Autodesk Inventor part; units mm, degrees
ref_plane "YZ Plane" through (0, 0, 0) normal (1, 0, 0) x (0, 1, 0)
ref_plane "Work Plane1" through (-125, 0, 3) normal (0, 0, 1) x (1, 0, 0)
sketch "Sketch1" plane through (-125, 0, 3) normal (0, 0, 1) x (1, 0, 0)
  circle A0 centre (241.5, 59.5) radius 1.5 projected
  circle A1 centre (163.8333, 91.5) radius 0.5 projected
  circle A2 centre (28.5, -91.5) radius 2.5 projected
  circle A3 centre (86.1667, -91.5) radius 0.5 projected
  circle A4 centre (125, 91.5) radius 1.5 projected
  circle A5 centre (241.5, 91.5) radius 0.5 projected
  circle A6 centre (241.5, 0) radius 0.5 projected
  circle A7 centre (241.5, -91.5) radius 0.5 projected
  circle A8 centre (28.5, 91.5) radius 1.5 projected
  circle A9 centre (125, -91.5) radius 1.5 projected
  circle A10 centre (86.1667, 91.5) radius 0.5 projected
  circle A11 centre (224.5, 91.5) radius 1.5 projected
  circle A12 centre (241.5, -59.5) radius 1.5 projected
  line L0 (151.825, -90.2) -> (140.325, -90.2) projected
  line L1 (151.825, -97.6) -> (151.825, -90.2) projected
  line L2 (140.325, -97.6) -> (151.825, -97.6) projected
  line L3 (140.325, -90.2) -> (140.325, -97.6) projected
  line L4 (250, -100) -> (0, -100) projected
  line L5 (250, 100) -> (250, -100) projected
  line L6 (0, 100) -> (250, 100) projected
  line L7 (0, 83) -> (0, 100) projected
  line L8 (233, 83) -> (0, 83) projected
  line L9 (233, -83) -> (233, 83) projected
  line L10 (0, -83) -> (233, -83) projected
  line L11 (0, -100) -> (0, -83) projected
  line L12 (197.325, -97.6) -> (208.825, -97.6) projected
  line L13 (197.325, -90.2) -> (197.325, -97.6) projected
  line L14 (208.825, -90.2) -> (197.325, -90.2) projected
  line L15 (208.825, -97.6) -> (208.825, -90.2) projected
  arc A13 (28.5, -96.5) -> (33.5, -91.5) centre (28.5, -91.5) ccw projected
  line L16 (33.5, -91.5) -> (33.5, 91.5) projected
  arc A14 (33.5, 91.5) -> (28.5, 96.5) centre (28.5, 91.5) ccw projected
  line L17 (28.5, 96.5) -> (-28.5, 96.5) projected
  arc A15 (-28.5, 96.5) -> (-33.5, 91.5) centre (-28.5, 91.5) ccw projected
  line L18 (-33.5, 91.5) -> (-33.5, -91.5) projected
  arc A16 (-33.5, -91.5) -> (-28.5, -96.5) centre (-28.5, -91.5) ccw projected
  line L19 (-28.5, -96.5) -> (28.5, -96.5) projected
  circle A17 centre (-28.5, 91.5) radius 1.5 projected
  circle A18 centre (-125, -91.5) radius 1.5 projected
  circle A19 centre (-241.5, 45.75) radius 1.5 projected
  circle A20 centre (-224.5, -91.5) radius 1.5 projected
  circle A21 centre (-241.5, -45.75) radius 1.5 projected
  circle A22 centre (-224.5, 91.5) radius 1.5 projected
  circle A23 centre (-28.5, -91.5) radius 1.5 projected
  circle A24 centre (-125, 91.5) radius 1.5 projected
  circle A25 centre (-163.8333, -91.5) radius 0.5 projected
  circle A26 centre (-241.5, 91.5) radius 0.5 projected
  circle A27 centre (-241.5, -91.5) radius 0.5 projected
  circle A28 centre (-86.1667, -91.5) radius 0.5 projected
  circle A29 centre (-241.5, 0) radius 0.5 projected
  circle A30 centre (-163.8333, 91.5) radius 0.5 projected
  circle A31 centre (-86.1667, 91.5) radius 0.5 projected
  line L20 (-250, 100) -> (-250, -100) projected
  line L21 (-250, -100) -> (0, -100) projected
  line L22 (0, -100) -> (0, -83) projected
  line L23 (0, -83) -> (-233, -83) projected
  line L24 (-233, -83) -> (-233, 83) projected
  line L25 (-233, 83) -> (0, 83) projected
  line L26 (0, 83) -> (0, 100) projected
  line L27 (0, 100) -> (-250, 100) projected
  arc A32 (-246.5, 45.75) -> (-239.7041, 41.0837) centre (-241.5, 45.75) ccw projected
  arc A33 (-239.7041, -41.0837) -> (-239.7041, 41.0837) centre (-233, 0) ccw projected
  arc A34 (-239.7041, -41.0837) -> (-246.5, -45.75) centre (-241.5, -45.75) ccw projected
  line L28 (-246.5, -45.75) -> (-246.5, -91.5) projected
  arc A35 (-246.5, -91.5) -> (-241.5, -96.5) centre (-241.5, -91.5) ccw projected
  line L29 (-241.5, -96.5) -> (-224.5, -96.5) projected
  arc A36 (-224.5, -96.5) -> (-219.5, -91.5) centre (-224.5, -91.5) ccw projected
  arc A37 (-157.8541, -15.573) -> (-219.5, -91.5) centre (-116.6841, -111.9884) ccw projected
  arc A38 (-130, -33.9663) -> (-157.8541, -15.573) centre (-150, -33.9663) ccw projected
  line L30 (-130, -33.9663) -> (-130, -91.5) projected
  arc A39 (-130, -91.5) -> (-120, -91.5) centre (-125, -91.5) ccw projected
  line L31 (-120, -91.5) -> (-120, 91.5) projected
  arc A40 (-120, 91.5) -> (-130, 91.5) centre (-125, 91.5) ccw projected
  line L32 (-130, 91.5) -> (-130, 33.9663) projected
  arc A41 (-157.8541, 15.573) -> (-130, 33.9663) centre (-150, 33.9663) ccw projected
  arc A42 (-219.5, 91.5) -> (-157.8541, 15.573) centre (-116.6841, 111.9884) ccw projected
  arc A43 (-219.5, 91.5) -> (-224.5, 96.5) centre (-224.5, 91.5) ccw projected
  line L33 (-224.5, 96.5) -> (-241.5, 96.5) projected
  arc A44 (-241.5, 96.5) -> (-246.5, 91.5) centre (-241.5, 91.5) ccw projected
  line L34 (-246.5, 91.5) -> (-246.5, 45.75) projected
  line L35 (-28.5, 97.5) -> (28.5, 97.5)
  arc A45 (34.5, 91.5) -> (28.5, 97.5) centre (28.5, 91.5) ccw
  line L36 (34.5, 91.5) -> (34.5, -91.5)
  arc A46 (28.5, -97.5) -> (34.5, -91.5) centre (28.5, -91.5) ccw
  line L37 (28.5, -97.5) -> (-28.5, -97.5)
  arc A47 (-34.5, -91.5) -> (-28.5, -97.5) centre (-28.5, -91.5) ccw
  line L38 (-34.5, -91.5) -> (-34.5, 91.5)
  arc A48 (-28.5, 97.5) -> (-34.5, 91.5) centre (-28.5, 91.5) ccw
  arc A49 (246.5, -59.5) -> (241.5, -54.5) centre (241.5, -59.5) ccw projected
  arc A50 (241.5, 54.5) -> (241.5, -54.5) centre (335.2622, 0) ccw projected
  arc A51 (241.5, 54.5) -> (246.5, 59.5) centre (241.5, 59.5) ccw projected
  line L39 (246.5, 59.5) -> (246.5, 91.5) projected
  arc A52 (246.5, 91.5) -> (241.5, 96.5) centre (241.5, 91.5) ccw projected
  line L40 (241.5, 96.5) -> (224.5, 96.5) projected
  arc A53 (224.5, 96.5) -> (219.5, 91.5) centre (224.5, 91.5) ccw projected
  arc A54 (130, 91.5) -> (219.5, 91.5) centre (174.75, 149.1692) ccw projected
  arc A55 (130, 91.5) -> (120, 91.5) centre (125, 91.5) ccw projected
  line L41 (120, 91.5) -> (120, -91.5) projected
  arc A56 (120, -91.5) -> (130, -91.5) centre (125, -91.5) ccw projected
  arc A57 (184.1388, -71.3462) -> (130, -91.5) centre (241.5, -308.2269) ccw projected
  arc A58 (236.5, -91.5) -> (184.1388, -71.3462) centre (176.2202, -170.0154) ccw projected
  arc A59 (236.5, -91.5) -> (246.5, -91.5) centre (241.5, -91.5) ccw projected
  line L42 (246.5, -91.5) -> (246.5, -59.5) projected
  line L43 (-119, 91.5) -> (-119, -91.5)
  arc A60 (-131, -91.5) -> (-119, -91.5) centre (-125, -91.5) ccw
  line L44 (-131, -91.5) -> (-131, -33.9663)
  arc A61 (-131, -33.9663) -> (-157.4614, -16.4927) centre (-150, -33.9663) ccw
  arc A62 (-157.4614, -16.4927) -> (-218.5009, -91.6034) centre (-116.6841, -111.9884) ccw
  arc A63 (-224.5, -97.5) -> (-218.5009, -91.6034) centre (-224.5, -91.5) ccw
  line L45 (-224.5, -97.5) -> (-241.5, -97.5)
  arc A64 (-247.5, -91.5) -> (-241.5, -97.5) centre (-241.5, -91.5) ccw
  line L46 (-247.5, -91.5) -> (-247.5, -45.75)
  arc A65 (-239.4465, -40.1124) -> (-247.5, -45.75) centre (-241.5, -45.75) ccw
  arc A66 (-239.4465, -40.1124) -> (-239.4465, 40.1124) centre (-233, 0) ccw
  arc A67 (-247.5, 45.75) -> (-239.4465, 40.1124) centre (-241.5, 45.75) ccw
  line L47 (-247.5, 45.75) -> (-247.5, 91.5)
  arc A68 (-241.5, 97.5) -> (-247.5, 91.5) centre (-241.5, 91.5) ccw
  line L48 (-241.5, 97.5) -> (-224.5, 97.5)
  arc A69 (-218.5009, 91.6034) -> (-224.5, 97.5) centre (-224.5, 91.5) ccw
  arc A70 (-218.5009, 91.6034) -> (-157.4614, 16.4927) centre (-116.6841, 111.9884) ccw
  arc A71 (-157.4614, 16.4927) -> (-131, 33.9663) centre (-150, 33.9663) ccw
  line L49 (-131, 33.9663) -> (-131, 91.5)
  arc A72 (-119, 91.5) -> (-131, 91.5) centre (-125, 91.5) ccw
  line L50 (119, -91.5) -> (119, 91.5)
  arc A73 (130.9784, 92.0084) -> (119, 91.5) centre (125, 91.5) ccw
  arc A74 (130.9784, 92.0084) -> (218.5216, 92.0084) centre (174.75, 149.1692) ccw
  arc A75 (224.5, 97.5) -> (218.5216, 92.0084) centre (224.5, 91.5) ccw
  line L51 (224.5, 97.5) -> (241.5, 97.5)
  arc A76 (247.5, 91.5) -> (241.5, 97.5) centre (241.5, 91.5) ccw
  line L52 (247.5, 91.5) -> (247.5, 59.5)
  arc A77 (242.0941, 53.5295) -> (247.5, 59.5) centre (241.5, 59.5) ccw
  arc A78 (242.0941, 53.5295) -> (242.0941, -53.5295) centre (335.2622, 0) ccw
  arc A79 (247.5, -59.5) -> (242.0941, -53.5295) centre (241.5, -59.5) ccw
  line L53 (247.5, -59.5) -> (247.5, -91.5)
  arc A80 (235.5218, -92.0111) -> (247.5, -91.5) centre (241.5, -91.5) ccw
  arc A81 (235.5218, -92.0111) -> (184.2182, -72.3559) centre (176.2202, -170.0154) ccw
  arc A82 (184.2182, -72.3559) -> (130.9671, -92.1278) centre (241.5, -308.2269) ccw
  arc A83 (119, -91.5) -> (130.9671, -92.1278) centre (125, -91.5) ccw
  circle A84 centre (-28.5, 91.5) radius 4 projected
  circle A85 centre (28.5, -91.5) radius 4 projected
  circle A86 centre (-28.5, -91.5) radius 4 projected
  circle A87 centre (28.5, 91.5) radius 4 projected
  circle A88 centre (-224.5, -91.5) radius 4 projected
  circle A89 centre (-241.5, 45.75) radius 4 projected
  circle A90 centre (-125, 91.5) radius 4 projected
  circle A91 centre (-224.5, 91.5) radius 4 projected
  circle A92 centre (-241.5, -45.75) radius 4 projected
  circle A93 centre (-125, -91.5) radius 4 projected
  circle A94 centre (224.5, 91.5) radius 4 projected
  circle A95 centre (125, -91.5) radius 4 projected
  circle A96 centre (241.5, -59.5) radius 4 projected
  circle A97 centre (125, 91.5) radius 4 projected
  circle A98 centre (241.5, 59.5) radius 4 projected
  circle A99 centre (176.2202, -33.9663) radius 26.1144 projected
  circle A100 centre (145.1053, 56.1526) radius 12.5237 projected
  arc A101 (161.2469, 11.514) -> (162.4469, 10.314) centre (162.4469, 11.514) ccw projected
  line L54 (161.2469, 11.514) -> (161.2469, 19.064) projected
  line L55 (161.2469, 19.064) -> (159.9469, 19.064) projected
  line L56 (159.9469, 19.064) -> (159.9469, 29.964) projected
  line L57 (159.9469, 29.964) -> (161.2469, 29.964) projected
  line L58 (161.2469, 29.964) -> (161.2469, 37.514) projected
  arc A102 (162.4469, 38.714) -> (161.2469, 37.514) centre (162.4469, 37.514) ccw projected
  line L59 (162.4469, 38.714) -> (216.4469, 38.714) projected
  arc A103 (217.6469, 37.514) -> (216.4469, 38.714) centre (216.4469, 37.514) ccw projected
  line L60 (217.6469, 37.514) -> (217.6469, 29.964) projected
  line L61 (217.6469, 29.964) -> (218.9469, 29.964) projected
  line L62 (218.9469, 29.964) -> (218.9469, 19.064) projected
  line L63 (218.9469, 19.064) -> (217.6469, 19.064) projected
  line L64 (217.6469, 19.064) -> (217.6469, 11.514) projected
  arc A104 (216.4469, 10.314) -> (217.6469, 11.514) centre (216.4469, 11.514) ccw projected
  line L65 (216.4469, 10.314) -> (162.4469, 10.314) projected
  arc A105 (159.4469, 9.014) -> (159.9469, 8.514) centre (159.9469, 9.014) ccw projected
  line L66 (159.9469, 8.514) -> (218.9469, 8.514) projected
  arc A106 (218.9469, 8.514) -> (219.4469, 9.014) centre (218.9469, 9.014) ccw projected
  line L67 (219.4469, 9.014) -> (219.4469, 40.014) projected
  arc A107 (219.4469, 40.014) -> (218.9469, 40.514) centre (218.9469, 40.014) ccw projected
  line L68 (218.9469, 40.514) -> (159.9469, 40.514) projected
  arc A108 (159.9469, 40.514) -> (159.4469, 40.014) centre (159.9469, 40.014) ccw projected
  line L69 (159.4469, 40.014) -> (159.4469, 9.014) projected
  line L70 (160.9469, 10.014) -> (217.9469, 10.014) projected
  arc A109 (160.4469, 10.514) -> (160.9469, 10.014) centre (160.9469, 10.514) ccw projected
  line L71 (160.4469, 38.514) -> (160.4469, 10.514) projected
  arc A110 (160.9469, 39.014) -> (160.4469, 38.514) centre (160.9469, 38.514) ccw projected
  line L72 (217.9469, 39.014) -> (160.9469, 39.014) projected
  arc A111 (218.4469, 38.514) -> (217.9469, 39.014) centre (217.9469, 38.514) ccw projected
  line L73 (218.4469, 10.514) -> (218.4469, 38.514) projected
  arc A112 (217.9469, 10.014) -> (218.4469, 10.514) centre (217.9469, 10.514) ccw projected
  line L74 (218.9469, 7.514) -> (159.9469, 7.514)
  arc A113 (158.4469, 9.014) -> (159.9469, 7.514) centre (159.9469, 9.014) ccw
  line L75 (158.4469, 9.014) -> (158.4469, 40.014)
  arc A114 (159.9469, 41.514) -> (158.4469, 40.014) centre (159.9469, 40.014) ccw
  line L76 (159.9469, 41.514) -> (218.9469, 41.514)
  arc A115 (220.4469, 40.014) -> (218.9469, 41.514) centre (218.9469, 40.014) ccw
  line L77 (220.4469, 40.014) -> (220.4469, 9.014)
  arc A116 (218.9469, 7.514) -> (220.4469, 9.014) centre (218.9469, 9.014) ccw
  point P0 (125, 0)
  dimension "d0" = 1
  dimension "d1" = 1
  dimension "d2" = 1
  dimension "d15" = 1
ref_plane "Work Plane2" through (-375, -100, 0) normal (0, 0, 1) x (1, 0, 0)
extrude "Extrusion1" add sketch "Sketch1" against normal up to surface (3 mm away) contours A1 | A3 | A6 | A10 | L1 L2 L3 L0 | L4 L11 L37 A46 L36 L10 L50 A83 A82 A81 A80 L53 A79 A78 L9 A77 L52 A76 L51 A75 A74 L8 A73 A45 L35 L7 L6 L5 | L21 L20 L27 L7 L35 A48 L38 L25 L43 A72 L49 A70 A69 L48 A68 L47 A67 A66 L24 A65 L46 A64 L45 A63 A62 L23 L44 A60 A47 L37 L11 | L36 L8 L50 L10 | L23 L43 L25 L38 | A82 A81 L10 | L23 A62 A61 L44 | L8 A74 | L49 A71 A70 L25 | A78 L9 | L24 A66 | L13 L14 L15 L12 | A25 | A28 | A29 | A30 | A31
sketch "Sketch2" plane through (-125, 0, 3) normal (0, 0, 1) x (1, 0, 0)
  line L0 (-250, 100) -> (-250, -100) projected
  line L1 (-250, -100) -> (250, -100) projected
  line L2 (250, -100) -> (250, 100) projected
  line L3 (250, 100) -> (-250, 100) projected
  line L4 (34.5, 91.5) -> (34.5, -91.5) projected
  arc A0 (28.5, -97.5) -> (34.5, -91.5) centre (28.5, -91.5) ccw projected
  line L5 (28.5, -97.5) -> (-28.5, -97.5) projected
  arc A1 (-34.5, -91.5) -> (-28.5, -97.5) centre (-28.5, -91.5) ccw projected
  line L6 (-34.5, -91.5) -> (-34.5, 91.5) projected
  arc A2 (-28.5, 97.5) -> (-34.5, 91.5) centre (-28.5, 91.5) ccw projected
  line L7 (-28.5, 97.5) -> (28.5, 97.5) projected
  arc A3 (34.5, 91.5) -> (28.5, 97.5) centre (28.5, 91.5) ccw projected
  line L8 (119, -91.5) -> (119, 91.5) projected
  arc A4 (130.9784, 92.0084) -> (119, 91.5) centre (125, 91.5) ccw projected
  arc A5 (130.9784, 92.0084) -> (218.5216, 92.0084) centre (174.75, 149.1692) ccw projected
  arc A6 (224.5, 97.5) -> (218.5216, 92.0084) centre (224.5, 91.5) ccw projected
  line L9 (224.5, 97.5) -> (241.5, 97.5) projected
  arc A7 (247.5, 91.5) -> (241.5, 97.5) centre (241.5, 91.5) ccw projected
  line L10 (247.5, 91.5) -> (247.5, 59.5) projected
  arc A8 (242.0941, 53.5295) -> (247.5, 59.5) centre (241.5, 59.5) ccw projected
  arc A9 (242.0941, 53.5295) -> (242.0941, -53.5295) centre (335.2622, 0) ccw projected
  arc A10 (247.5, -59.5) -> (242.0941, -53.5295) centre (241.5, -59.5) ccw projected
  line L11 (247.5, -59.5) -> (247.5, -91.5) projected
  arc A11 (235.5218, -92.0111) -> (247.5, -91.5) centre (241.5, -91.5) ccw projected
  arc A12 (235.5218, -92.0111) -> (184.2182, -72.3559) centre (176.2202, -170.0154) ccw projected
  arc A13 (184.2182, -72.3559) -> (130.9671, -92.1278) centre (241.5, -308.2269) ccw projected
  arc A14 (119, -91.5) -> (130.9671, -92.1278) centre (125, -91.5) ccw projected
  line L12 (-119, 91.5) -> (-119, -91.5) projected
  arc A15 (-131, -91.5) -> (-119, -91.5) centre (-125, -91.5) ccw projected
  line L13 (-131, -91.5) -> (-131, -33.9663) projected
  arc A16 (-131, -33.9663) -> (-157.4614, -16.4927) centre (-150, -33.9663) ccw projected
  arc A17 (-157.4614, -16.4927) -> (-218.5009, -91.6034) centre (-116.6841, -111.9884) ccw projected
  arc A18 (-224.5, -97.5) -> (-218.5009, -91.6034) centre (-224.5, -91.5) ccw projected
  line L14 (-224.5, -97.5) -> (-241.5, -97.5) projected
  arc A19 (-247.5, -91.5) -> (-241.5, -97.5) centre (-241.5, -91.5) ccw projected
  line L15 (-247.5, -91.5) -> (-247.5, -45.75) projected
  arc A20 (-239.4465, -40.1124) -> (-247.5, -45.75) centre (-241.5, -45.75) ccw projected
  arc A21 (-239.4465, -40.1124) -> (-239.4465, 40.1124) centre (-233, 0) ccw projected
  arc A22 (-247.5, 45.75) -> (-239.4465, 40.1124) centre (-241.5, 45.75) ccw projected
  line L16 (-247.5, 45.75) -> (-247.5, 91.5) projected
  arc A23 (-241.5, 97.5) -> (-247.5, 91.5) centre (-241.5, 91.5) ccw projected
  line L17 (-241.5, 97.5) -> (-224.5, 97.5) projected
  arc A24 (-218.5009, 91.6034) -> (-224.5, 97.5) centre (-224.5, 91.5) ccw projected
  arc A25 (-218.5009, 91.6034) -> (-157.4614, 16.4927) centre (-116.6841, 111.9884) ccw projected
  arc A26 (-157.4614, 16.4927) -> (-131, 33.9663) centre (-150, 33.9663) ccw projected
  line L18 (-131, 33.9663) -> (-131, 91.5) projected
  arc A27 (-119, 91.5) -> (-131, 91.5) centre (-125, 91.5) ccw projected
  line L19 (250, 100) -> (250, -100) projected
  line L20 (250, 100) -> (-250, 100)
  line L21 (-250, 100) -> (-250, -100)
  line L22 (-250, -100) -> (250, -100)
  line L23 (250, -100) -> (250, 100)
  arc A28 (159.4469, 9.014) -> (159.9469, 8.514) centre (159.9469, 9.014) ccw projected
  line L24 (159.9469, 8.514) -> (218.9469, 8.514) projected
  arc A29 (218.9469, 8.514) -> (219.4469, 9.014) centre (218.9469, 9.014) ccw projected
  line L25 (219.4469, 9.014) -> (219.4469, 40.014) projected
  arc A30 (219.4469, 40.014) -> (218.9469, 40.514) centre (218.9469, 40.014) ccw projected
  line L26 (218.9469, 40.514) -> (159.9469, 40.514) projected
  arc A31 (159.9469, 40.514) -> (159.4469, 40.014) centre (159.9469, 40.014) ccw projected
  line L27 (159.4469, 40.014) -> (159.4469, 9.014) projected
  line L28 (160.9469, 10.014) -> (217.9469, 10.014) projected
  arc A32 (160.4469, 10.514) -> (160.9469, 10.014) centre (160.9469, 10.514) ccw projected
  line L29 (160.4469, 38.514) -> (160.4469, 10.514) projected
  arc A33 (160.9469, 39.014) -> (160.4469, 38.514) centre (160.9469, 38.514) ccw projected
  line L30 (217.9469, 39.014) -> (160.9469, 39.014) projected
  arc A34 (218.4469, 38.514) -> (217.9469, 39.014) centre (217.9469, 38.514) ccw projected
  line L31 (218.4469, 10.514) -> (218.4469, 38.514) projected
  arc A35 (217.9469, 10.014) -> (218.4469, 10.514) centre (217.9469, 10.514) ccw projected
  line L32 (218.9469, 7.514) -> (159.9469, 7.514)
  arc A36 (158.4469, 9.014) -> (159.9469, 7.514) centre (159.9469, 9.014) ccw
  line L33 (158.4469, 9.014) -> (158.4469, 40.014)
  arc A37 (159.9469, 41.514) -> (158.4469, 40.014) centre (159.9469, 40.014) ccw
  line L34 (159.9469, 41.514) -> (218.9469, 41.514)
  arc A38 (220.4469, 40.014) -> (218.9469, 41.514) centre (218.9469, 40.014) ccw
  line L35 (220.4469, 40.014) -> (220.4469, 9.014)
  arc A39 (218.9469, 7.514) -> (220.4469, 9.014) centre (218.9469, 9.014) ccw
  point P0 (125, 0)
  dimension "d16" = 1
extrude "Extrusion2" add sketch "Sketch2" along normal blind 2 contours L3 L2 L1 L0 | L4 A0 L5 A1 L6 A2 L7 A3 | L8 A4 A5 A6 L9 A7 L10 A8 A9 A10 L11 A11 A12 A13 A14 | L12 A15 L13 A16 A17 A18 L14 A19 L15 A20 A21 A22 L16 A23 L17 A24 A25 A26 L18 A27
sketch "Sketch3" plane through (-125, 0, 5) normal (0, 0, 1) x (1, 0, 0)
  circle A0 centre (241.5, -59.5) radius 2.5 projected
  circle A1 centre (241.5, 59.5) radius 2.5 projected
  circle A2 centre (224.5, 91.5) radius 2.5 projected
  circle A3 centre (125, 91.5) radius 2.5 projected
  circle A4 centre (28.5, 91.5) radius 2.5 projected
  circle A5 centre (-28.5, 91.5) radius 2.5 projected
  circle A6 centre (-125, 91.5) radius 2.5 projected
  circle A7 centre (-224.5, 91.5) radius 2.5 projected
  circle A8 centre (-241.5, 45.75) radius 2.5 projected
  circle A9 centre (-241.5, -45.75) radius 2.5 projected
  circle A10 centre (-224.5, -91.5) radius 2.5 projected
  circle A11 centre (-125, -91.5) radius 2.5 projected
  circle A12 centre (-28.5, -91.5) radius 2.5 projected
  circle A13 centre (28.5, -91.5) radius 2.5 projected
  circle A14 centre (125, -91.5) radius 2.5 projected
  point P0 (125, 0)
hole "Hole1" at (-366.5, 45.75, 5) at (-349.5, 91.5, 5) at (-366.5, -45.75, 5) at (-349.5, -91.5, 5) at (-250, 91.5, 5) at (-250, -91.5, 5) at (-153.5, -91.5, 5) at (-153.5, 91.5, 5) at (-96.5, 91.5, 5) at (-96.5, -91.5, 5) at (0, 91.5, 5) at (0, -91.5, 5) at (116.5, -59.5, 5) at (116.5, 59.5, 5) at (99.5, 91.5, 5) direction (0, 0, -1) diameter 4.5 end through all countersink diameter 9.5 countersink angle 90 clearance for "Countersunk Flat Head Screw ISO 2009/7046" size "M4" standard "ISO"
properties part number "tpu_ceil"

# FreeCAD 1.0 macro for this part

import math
import FreeCAD as App
import Part
import Sketcher
Q = App.Units.Quantity


def add_polygon(sketch, points):
    """Adds a closed chain of lines whose ends are joined by coincident constraints."""
    first, n = sketch.GeometryCount, len(points)
    for a, b in zip(points, points[1:] + points[:1]):
        sketch.addGeometry(Part.LineSegment(App.Vector(*a, 0), App.Vector(*b, 0)), False)
    for i in range(n):
        sketch.addConstraint(Sketcher.Constraint("Coincident", first + i, 2, first + (i + 1) % n, 1))

doc = App.newDocument("Part")
params = doc.addObject("Spreadsheet::Sheet", "Params")
for row, (alias, value) in enumerate([
    ("sketch1_radius", "6 mm"),
    ("sketch1_radius2", "19 mm"),
    ("sketch1_width", "500 mm"),
    ("sketch1_width2", "57 mm"),
    ("sketch1_width3", "17 mm"),
    ("pad1_length", "3 mm"),
    ("sketch2_radius", "1.5 mm"),
    ("sketch2_width", "500 mm"),
    ("sketch2_width2", "59 mm"),
    ("sketch2_height", "200 mm"),
    ("sketch2_height2", "31 mm"),
    ("pad2_length", "2 mm"),
    ("sketch3_diameter", "4.5 mm"),
    ("hole_diameter", "4.5 mm"),
    ("hole_csink_diameter", "9.5 mm"),
], start=1):
    params.set(f"A{row}", alias)
    params.set(f"B{row}", "=" + value)
    params.setAlias(f"B{row}", alias)

body = doc.addObject("PartDesign::Body", "Body")

# Sketch on XY plane
sketch1 = body.newObject("Sketcher::SketchObject", "Sketch")
sketch1.AttachmentSupport = (doc.getObject("XY_Plane"), [""])
sketch1.MapMode = "FlatFace"
sketch1.AttachmentOffset = App.Placement(App.Vector(0, 0, 3), App.Rotation())
add_polygon(sketch1, [(125, -100), (125, 100), (-375, 100), (-375, -100)])  # lines 0-3
sketch1.addGeometry(Part.LineSegment(App.Vector(-96, -98, 0), App.Vector(-154, -98, 0)), False)  # 4
sketch1.addGeometry(Part.ArcOfCircle(Part.Circle(App.Vector(-154, -92, 0), App.Vector(0, 0, 1), 6), math.radians(180), math.radians(270)), False)  # 5
sketch1.addGeometry(Part.LineSegment(App.Vector(-160, -92, 0), App.Vector(-160, 92, 0)), False)  # 6
sketch1.addGeometry(Part.ArcOfCircle(Part.Circle(App.Vector(-154, 92, 0), App.Vector(0, 0, 1), 6), math.radians(90), math.radians(180)), False)  # 7
sketch1.addGeometry(Part.LineSegment(App.Vector(-154, 98, 0), App.Vector(-96, 98, 0)), False)  # 8
sketch1.addGeometry(Part.ArcOfCircle(Part.Circle(App.Vector(-96, 92, 0), App.Vector(0, 0, 1), 6), math.radians(0), math.radians(90)), False)  # 9
sketch1.addGeometry(Part.LineSegment(App.Vector(-90, 92, 0), App.Vector(-90, -92, 0)), False)  # 10
sketch1.addGeometry(Part.ArcOfCircle(Part.Circle(App.Vector(-96, -92, 0), App.Vector(0, 0, 1), 6), math.radians(-90), math.radians(0)), False)  # 11
sketch1.addGeometry(Part.LineSegment(App.Vector(-6, -92, 0), App.Vector(-6, 92, 0)), False)  # 12
sketch1.addGeometry(Part.ArcOfCircle(Part.Circle(App.Vector(0, 92, 0), App.Vector(0, 0, 1), 6), math.radians(5), math.radians(180)), False)  # 13
sketch1.addGeometry(Part.ArcOfCircle(Part.Circle(App.Vector(50, 149, 0), App.Vector(0, 0, 1), 72), math.radians(-127), math.radians(-53)), False)  # 14
sketch1.addGeometry(Part.ArcOfCircle(Part.Circle(App.Vector(100, 92, 0), App.Vector(0, 0, 1), 6), math.radians(90), math.radians(175)), False)  # 15
sketch1.addGeometry(Part.LineSegment(App.Vector(100, 98, 0), App.Vector(116, 98, 0)), False)  # 16
sketch1.addGeometry(Part.ArcOfCircle(Part.Circle(App.Vector(116, 92, 0), App.Vector(0, 0, 1), 6), math.radians(0), math.radians(90)), False)  # 17
sketch1.addGeometry(Part.LineSegment(App.Vector(122, 92, 0), App.Vector(122, 60, 0)), False)  # 18
sketch1.addGeometry(Part.ArcOfCircle(Part.Circle(App.Vector(116, 60, 0), App.Vector(0, 0, 1), 6), math.radians(-84), math.radians(0)), False)  # 19
sketch1.addGeometry(Part.ArcOfCircle(Part.Circle(App.Vector(210, 0, 0), App.Vector(0, 0, 1), 107), math.radians(150), math.radians(210)), False)  # 20
sketch1.addGeometry(Part.ArcOfCircle(Part.Circle(App.Vector(116, -60, 0), App.Vector(0, 0, 1), 6), math.radians(0), math.radians(84)), False)  # 21
sketch1.addGeometry(Part.LineSegment(App.Vector(122, -60, 0), App.Vector(122, -92, 0)), False)  # 22
sketch1.addGeometry(Part.ArcOfCircle(Part.Circle(App.Vector(116, -92, 0), App.Vector(0, 0, 1), 6), math.radians(-175), math.radians(0)), False)  # 23
sketch1.addGeometry(Part.ArcOfCircle(Part.Circle(App.Vector(51, -170, 0), App.Vector(0, 0, 1), 98), math.radians(53), math.radians(85)), False)  # 24
sketch1.addGeometry(Part.ArcOfCircle(Part.Circle(App.Vector(117, -308, 0), App.Vector(0, 0, 1), 243), math.radians(103.65), math.radians(117.09)), False)  # 25
sketch1.addGeometry(Part.ArcOfCircle(Part.Circle(App.Vector(0, -92, 0), App.Vector(0, 0, 1), 6), math.radians(180), math.radians(354)), False)  # 26
sketch1.addGeometry(Part.LineSegment(App.Vector(-244, 92, 0), App.Vector(-244, -92, 0)), False)  # 27
sketch1.addGeometry(Part.ArcOfCircle(Part.Circle(App.Vector(-250, -92, 0), App.Vector(0, 0, 1), 6), math.radians(180), math.radians(360)), False)  # 28
sketch1.addGeometry(Part.LineSegment(App.Vector(-256, -92, 0), App.Vector(-256, -34, 0)), False)  # 29
sketch1.addGeometry(Part.ArcOfCircle(Part.Circle(App.Vector(-275, -34, 0), App.Vector(0, 0, 1), 19), math.radians(0), math.radians(113)), False)  # 30
sketch1.addGeometry(Part.ArcOfCircle(Part.Circle(App.Vector(-242, -112, 0), App.Vector(0, 0, 1), 104), math.radians(113), math.radians(169)), False)  # 31
sketch1.addGeometry(Part.ArcOfCircle(Part.Circle(App.Vector(-350, -92, 0), App.Vector(0, 0, 1), 6), math.radians(-90), math.radians(-1)), False)  # 32
sketch1.addGeometry(Part.LineSegment(App.Vector(-350, -98, 0), App.Vector(-366, -98, 0)), False)  # 33
sketch1.addGeometry(Part.ArcOfCircle(Part.Circle(App.Vector(-366, -92, 0), App.Vector(0, 0, 1), 6), math.radians(180), math.radians(270)), False)  # 34
sketch1.addGeometry(Part.LineSegment(App.Vector(-372, -92, 0), App.Vector(-372, -46, 0)), False)  # 35
sketch1.addGeometry(Part.ArcOfCircle(Part.Circle(App.Vector(-366, -46, 0), App.Vector(0, 0, 1), 6), math.radians(70), math.radians(180)), False)  # 36
sketch1.addGeometry(Part.ArcOfCircle(Part.Circle(App.Vector(-358, 0, 0), App.Vector(0, 0, 1), 41), math.radians(-99), math.radians(99)), False)  # 37
sketch1.addGeometry(Part.ArcOfCircle(Part.Circle(App.Vector(-366, 46, 0), App.Vector(0, 0, 1), 6), math.radians(180), math.radians(290)), False)  # 38
sketch1.addGeometry(Part.LineSegment(App.Vector(-372, 46, 0), App.Vector(-372, 92, 0)), False)  # 39
sketch1.addGeometry(Part.ArcOfCircle(Part.Circle(App.Vector(-366, 92, 0), App.Vector(0, 0, 1), 6), math.radians(90), math.radians(180)), False)  # 40
sketch1.addGeometry(Part.LineSegment(App.Vector(-366, 98, 0), App.Vector(-350, 98, 0)), False)  # 41
sketch1.addGeometry(Part.ArcOfCircle(Part.Circle(App.Vector(-350, 92, 0), App.Vector(0, 0, 1), 6), math.radians(1), math.radians(90)), False)  # 42
sketch1.addGeometry(Part.ArcOfCircle(Part.Circle(App.Vector(-242, 112, 0), App.Vector(0, 0, 1), 104), math.radians(-169), math.radians(-113)), False)  # 43
sketch1.addGeometry(Part.ArcOfCircle(Part.Circle(App.Vector(-275, 34, 0), App.Vector(0, 0, 1), 19), math.radians(-113), math.radians(0)), False)  # 44
sketch1.addGeometry(Part.LineSegment(App.Vector(-256, 34, 0), App.Vector(-256, 92, 0)), False)  # 45
sketch1.addGeometry(Part.ArcOfCircle(Part.Circle(App.Vector(-250, 92, 0), App.Vector(0, 0, 1), 6), math.radians(0), math.radians(180)), False)  # 46
sketch1.addConstraint(Sketcher.Constraint("Tangent", 4, 2, 5, 2))
sketch1.addConstraint(Sketcher.Constraint("Tangent", 5, 1, 6, 1))
sketch1.addConstraint(Sketcher.Constraint("Tangent", 6, 2, 7, 2))
sketch1.addConstraint(Sketcher.Constraint("Tangent", 7, 1, 8, 1))
sketch1.addConstraint(Sketcher.Constraint("Tangent", 8, 2, 9, 2))
sketch1.addConstraint(Sketcher.Constraint("Tangent", 9, 1, 10, 1))
sketch1.addConstraint(Sketcher.Constraint("Tangent", 10, 2, 11, 2))
sketch1.addConstraint(Sketcher.Constraint("Tangent", 11, 1, 4, 1))
sketch1.addConstraint(Sketcher.Constraint("Tangent", 12, 2, 13, 2))
sketch1.addConstraint(Sketcher.Constraint("Coincident", 13, 1, 14, 1))
sketch1.addConstraint(Sketcher.Constraint("Coincident", 14, 2, 15, 2))
sketch1.addConstraint(Sketcher.Constraint("Tangent", 15, 1, 16, 1))
sketch1.addConstraint(Sketcher.Constraint("Tangent", 16, 2, 17, 2))
sketch1.addConstraint(Sketcher.Constraint("Tangent", 17, 1, 18, 1))
sketch1.addConstraint(Sketcher.Constraint("Tangent", 18, 2, 19, 2))
sketch1.addConstraint(Sketcher.Constraint("Coincident", 19, 1, 20, 1))
sketch1.addConstraint(Sketcher.Constraint("Coincident", 20, 2, 21, 2))
sketch1.addConstraint(Sketcher.Constraint("Tangent", 21, 1, 22, 1))
sketch1.addConstraint(Sketcher.Constraint("Tangent", 22, 2, 23, 2))
sketch1.addConstraint(Sketcher.Constraint("Coincident", 23, 1, 24, 1))
sketch1.addConstraint(Sketcher.Constraint("Coincident", 24, 2, 25, 1))
sketch1.addConstraint(Sketcher.Constraint("Coincident", 25, 2, 26, 2))
sketch1.addConstraint(Sketcher.Constraint("Tangent", 26, 1, 12, 1))
sketch1.addConstraint(Sketcher.Constraint("Tangent", 27, 2, 28, 2))
sketch1.addConstraint(Sketcher.Constraint("Tangent", 28, 1, 29, 1))
sketch1.addConstraint(Sketcher.Constraint("Tangent", 29, 2, 30, 1))
sketch1.addConstraint(Sketcher.Constraint("Tangent", 30, 2, 31, 1))
sketch1.addConstraint(Sketcher.Constraint("Coincident", 31, 2, 32, 2))
sketch1.addConstraint(Sketcher.Constraint("Tangent", 32, 1, 33, 1))
sketch1.addConstraint(Sketcher.Constraint("Tangent", 33, 2, 34, 2))
sketch1.addConstraint(Sketcher.Constraint("Tangent", 34, 1, 35, 1))
sketch1.addConstraint(Sketcher.Constraint("Tangent", 35, 2, 36, 2))
sketch1.addConstraint(Sketcher.Constraint("Coincident", 36, 1, 37, 1))
sketch1.addConstraint(Sketcher.Constraint("Coincident", 37, 2, 38, 2))
sketch1.addConstraint(Sketcher.Constraint("Tangent", 38, 1, 39, 1))
sketch1.addConstraint(Sketcher.Constraint("Tangent", 39, 2, 40, 2))
sketch1.addConstraint(Sketcher.Constraint("Tangent", 40, 1, 41, 1))
sketch1.addConstraint(Sketcher.Constraint("Tangent", 41, 2, 42, 2))
sketch1.addConstraint(Sketcher.Constraint("Coincident", 42, 1, 43, 1))
sketch1.addConstraint(Sketcher.Constraint("Tangent", 43, 2, 44, 1))
sketch1.addConstraint(Sketcher.Constraint("Tangent", 44, 2, 45, 1))
sketch1.addConstraint(Sketcher.Constraint("Tangent", 45, 2, 46, 2))
sketch1.addConstraint(Sketcher.Constraint("Tangent", 46, 1, 27, 1))
sketch1.addConstraint(Sketcher.Constraint("Vertical", 0))
sketch1.addConstraint(Sketcher.Constraint("Horizontal", 1))
sketch1.addConstraint(Sketcher.Constraint("Vertical", 2))
sketch1.addConstraint(Sketcher.Constraint("Horizontal", 3))
sketch1.addConstraint(Sketcher.Constraint("Horizontal", 4))
sketch1.addConstraint(Sketcher.Constraint("Vertical", 6))
sketch1.addConstraint(Sketcher.Constraint("Horizontal", 8))
sketch1.addConstraint(Sketcher.Constraint("Vertical", 10))
sketch1.addConstraint(Sketcher.Constraint("Vertical", 12))
sketch1.addConstraint(Sketcher.Constraint("Horizontal", 16))
sketch1.addConstraint(Sketcher.Constraint("Vertical", 18))
sketch1.addConstraint(Sketcher.Constraint("Vertical", 22))
sketch1.addConstraint(Sketcher.Constraint("Vertical", 27))
sketch1.addConstraint(Sketcher.Constraint("Vertical", 29))
sketch1.addConstraint(Sketcher.Constraint("Horizontal", 33))
sketch1.addConstraint(Sketcher.Constraint("Vertical", 35))
sketch1.addConstraint(Sketcher.Constraint("Vertical", 39))
sketch1.addConstraint(Sketcher.Constraint("Horizontal", 41))
sketch1.addConstraint(Sketcher.Constraint("Vertical", 45))
sketch1.addConstraint(Sketcher.Constraint("Equal", 5, 7))
sketch1.addConstraint(Sketcher.Constraint("Equal", 7, 9))
sketch1.addConstraint(Sketcher.Constraint("Equal", 9, 11))
sketch1.addConstraint(Sketcher.Constraint("Equal", 11, 13))
sketch1.addConstraint(Sketcher.Constraint("Equal", 13, 15))
sketch1.addConstraint(Sketcher.Constraint("Equal", 15, 17))
sketch1.addConstraint(Sketcher.Constraint("Equal", 17, 19))
sketch1.addConstraint(Sketcher.Constraint("Equal", 19, 21))
sketch1.addConstraint(Sketcher.Constraint("Equal", 21, 23))
sketch1.addConstraint(Sketcher.Constraint("Equal", 23, 26))
sketch1.addConstraint(Sketcher.Constraint("Equal", 26, 28))
sketch1.addConstraint(Sketcher.Constraint("Equal", 28, 32))
sketch1.addConstraint(Sketcher.Constraint("Equal", 32, 34))
sketch1.addConstraint(Sketcher.Constraint("Equal", 34, 36))
sketch1.addConstraint(Sketcher.Constraint("Equal", 36, 38))
sketch1.addConstraint(Sketcher.Constraint("Equal", 38, 40))
sketch1.addConstraint(Sketcher.Constraint("Equal", 40, 42))
sketch1.addConstraint(Sketcher.Constraint("Equal", 31, 43))
sketch1.addConstraint(Sketcher.Constraint("Equal", 30, 44))
sketch1.addConstraint(Sketcher.Constraint("Equal", 42, 46))
sketch1.addConstraint(Sketcher.Constraint("Symmetric", 13, 3, 26, 3, -1, 1))
sketch1.addConstraint(Sketcher.Constraint("Symmetric", 19, 3, 21, 3, -1))
sketch1.addConstraint(Sketcher.Constraint("Symmetric", 36, 3, 38, 3, -1))
sketch1.addConstraint(Sketcher.Constraint("Symmetric", 32, 3, 42, 3, -1))
sketch1.addConstraint(Sketcher.Constraint("Symmetric", 31, 3, 43, 3, -1))
sketch1.addConstraint(Sketcher.Constraint("PointOnObject", 20, 3, -1))
sketch1.addConstraint(Sketcher.Constraint("PointOnObject", 37, 3, -1))
sketch1.addConstraint(Sketcher.Constraint("Horizontal", 9, 3, 13, 3))
sketch1.addConstraint(Sketcher.Constraint("Horizontal", 13, 3, 15, 3))
sketch1.addConstraint(Sketcher.Constraint("Horizontal", 11, 3, 23, 3))
sketch1.addConstraint(Sketcher.Constraint("Horizontal", 23, 3, 26, 3))
sketch1.addConstraint(Sketcher.Constraint("Horizontal", 26, 3, 28, 3))
sketch1.addConstraint(Sketcher.Constraint("Horizontal", 28, 3, 32, 3))
sketch1.addConstraint(Sketcher.Constraint("Horizontal", 42, 3, 46, 3))
sketch1.addConstraint(Sketcher.Constraint("Horizontal", 13, 1, 14, 2))
sketch1.addConstraint(Sketcher.Constraint("Equal", 16, 33))
sketch1.addConstraint(Sketcher.Constraint("Radius", 5, Q("6 mm")))
sketch1.addConstraint(Sketcher.Constraint("Radius", 30, Q("19 mm")))
sketch1.addConstraint(Sketcher.Constraint("DistanceX", 1, 2, 1, 1, Q("500 mm")))
sketch1.addConstraint(Sketcher.Constraint("DistanceX", 4, 2, 4, 1, Q("57 mm")))
sketch1.addConstraint(Sketcher.Constraint("DistanceX", 16, 1, 16, 2, Q("17 mm")))
sketch1.addConstraint(Sketcher.Constraint("DistanceY", 0, 1, 0, 2, Q("200 mm")))
sketch1.addConstraint(Sketcher.Constraint("DistanceY", 6, 1, 6, 2, Q("183 mm")))
sketch1.addConstraint(Sketcher.Constraint("DistanceY", 18, 2, 18, 1, Q("32 mm")))
sketch1.addConstraint(Sketcher.Constraint("DistanceX", 28, 3, -1, 1, Q("250 mm")))
sketch1.addConstraint(Sketcher.Constraint("DistanceX", 37, 3, -1, 1, Q("358 mm")))
sketch1.addConstraint(Sketcher.Constraint("DistanceX", -1, 1, 0, 2, Q("125 mm")))
sketch1.addConstraint(Sketcher.Constraint("DistanceY", -1, 1, 0, 2, Q("100 mm")))
sketch1.addConstraint(Sketcher.Constraint("Radius", 20, Q("107.451 mm")))
sketch1.addConstraint(Sketcher.Constraint("Radius", 37, Q("40.627 mm")))
sketch1.addConstraint(Sketcher.Constraint("DistanceY", 35, 1, 35, 2, Q("45.75 mm")))
sketch1.addConstraint(Sketcher.Constraint("DistanceX", 5, 3, -1, 1, Q("153.5 mm")))
sketch1.addConstraint(Sketcher.Constraint("DistanceX", -1, 1, 15, 3, Q("99.5 mm")))
sketch1.addConstraint(Sketcher.Constraint("DistanceX", 32, 3, -1, 1, Q("349.5 mm")))
sketch1.addConstraint(Sketcher.Constraint("Radius", 14, Q("71.9952 mm")))
sketch1.addConstraint(Sketcher.Constraint("Radius", 24, Q("97.9865 mm")))
sketch1.addConstraint(Sketcher.Constraint("Radius", 25, Q("242.7283 mm")))
sketch1.addConstraint(Sketcher.Constraint("Radius", 31, Q("103.8375 mm")))
sketch1.addConstraint(Sketcher.Constraint("DistanceY", 29, 1, 29, 2, Q("57.5337 mm")))
sketch1.addConstraint(Sketcher.Constraint("DistanceX", 31, 3, -1, 1, Q("241.684 mm")))
sketch1.addConstraint(Sketcher.Constraint("DistanceX", -1, 1, 19, 1, Q("117.094 mm")))
sketch1.addConstraint(Sketcher.Constraint("DistanceY", 23, 1, -1, 1, Q("92.011 mm")))
sketch1.addConstraint(Sketcher.Constraint("DistanceY", -1, 1, 14, 3, Q("149.1692 mm")))
sketch1.addConstraint(Sketcher.Constraint("DistanceX", -1, 1, 24, 3, Q("51.2202 mm")))
sketch1.addConstraint(Sketcher.Constraint("DistanceX", -1, 1, 25, 3, Q("116.5004 mm")))
sketch1.addConstraint(Sketcher.Constraint("DistanceY", 25, 3, -1, 1, Q("308.2283 mm")))
sketch1.setExpression("Constraints[102]", "Params.sketch1_radius")
sketch1.setExpression("Constraints[103]", "Params.sketch1_radius2")
sketch1.setExpression("Constraints[104]", "Params.sketch1_width")
sketch1.setExpression("Constraints[105]", "Params.sketch1_width2")
sketch1.setExpression("Constraints[106]", "Params.sketch1_width3")
pad1 = body.newObject("PartDesign::Pad", "Pad")
pad1.Profile = sketch1
pad1.setExpression("Length", "Params.pad1_length")
pad1.Reversed = True

# Sketch on XY plane
sketch2 = body.newObject("Sketcher::SketchObject", "Sketch001")
sketch2.AttachmentSupport = (doc.getObject("XY_Plane"), [""])
sketch2.MapMode = "FlatFace"
sketch2.AttachmentOffset = App.Placement(App.Vector(0, 0, 3), App.Rotation())
add_polygon(sketch2, [(125, 100), (-375, 100), (-375, -100), (125, -100)])  # lines 0-3
sketch2.addGeometry(Part.LineSegment(App.Vector(95.4, 40, 0), App.Vector(95.4, 9, 0)), False)  # 4
sketch2.addGeometry(Part.ArcOfCircle(Part.Circle(App.Vector(93.9, 9, 0), App.Vector(0, 0, 1), 1.5), math.radians(-90), math.radians(0)), False)  # 5
sketch2.addGeometry(Part.LineSegment(App.Vector(93.9, 7.5, 0), App.Vector(34.9, 7.5, 0)), False)  # 6
sketch2.addGeometry(Part.ArcOfCircle(Part.Circle(App.Vector(34.9, 9, 0), App.Vector(0, 0, 1), 1.5), math.radians(180), math.radians(270)), False)  # 7
sketch2.addGeometry(Part.LineSegment(App.Vector(33.4, 9, 0), App.Vector(33.4, 40, 0)), False)  # 8
sketch2.addGeometry(Part.ArcOfCircle(Part.Circle(App.Vector(34.9, 40, 0), App.Vector(0, 0, 1), 1.5), math.radians(90), math.radians(180)), False)  # 9
sketch2.addGeometry(Part.LineSegment(App.Vector(34.9, 41.5, 0), App.Vector(93.9, 41.5, 0)), False)  # 10
sketch2.addGeometry(Part.ArcOfCircle(Part.Circle(App.Vector(93.9, 40, 0), App.Vector(0, 0, 1), 1.5), math.radians(0), math.radians(90)), False)  # 11
sketch2.addConstraint(Sketcher.Constraint("Tangent", 4, 2, 5, 2))
sketch2.addConstraint(Sketcher.Constraint("Tangent", 5, 1, 6, 1))
sketch2.addConstraint(Sketcher.Constraint("Tangent", 6, 2, 7, 2))
sketch2.addConstraint(Sketcher.Constraint("Tangent", 7, 1, 8, 1))
sketch2.addConstraint(Sketcher.Constraint("Tangent", 8, 2, 9, 2))
sketch2.addConstraint(Sketcher.Constraint("Tangent", 9, 1, 10, 1))
sketch2.addConstraint(Sketcher.Constraint("Tangent", 10, 2, 11, 2))
sketch2.addConstraint(Sketcher.Constraint("Tangent", 11, 1, 4, 1))
sketch2.addConstraint(Sketcher.Constraint("Horizontal", 0))
sketch2.addConstraint(Sketcher.Constraint("Vertical", 1))
sketch2.addConstraint(Sketcher.Constraint("Horizontal", 2))
sketch2.addConstraint(Sketcher.Constraint("Vertical", 3))
sketch2.addConstraint(Sketcher.Constraint("Vertical", 4))
sketch2.addConstraint(Sketcher.Constraint("Horizontal", 6))
sketch2.addConstraint(Sketcher.Constraint("Vertical", 8))
sketch2.addConstraint(Sketcher.Constraint("Horizontal", 10))
sketch2.addConstraint(Sketcher.Constraint("Equal", 5, 7))
sketch2.addConstraint(Sketcher.Constraint("Equal", 7, 9))
sketch2.addConstraint(Sketcher.Constraint("Equal", 9, 11))
sketch2.addConstraint(Sketcher.Constraint("Radius", 5, Q("1.5 mm")))
sketch2.addConstraint(Sketcher.Constraint("DistanceX", 0, 2, 0, 1, Q("500 mm")))
sketch2.addConstraint(Sketcher.Constraint("DistanceX", 6, 2, 6, 1, Q("59 mm")))
sketch2.addConstraint(Sketcher.Constraint("DistanceY", 1, 2, 1, 1, Q("200 mm")))
sketch2.addConstraint(Sketcher.Constraint("DistanceY", 4, 2, 4, 1, Q("31 mm")))
sketch2.addConstraint(Sketcher.Constraint("DistanceX", 0, 2, -1, 1, Q("375 mm")))
sketch2.addConstraint(Sketcher.Constraint("DistanceY", -1, 1, 0, 2, Q("100 mm")))
sketch2.addConstraint(Sketcher.Constraint("DistanceX", -1, 1, 5, 3, Q("93.947 mm")))
sketch2.addConstraint(Sketcher.Constraint("DistanceY", -1, 1, 5, 3, Q("9.014 mm")))
sketch2.setExpression("Constraints[23]", "Params.sketch2_radius")
sketch2.setExpression("Constraints[24]", "Params.sketch2_width")
sketch2.setExpression("Constraints[25]", "Params.sketch2_width2")
sketch2.setExpression("Constraints[26]", "Params.sketch2_height")
sketch2.setExpression("Constraints[27]", "Params.sketch2_height2")
pad2 = body.newObject("PartDesign::Pad", "Pad001")
pad2.Profile = sketch2
pad2.setExpression("Length", "Params.pad2_length")

# Sketch on XY plane
sketch3 = body.newObject("Sketcher::SketchObject", "Sketch002")
sketch3.AttachmentSupport = (doc.getObject("XY_Plane"), [""])
sketch3.MapMode = "FlatFace"
sketch3.AttachmentOffset = App.Placement(App.Vector(0, 0, 5), App.Rotation())
sketch3.addGeometry(Part.Circle(App.Vector(-366.5, 45.8, 0), App.Vector(0, 0, 1), 2.2), False)
sketch3.addGeometry(Part.Circle(App.Vector(-349.5, 91.5, 0), App.Vector(0, 0, 1), 2.2), False)
sketch3.addGeometry(Part.Circle(App.Vector(-366.5, -45.8, 0), App.Vector(0, 0, 1), 2.2), False)
sketch3.addGeometry(Part.Circle(App.Vector(-349.5, -91.5, 0), App.Vector(0, 0, 1), 2.2), False)
sketch3.addGeometry(Part.Circle(App.Vector(-250, 91.5, 0), App.Vector(0, 0, 1), 2.2), False)
sketch3.addGeometry(Part.Circle(App.Vector(-250, -91.5, 0), App.Vector(0, 0, 1), 2.2), False)
sketch3.addGeometry(Part.Circle(App.Vector(-153.5, -91.5, 0), App.Vector(0, 0, 1), 2.2), False)
sketch3.addGeometry(Part.Circle(App.Vector(-153.5, 91.5, 0), App.Vector(0, 0, 1), 2.2), False)
sketch3.addGeometry(Part.Circle(App.Vector(-96.5, 91.5, 0), App.Vector(0, 0, 1), 2.2), False)
sketch3.addGeometry(Part.Circle(App.Vector(-96.5, -91.5, 0), App.Vector(0, 0, 1), 2.2), False)
sketch3.addGeometry(Part.Circle(App.Vector(0, 91.5, 0), App.Vector(0, 0, 1), 2.2), False)
sketch3.addGeometry(Part.Circle(App.Vector(0, -91.5, 0), App.Vector(0, 0, 1), 2.2), False)
sketch3.addGeometry(Part.Circle(App.Vector(116.5, -59.5, 0), App.Vector(0, 0, 1), 2.2), False)
sketch3.addGeometry(Part.Circle(App.Vector(116.5, 59.5, 0), App.Vector(0, 0, 1), 2.2), False)
sketch3.addGeometry(Part.Circle(App.Vector(99.5, 91.5, 0), App.Vector(0, 0, 1), 2.2), False)
sketch3.addConstraint(Sketcher.Constraint("Equal", 0, 1))
sketch3.addConstraint(Sketcher.Constraint("Equal", 1, 2))
sketch3.addConstraint(Sketcher.Constraint("Equal", 2, 3))
sketch3.addConstraint(Sketcher.Constraint("Equal", 3, 4))
sketch3.addConstraint(Sketcher.Constraint("Equal", 4, 5))
sketch3.addConstraint(Sketcher.Constraint("Equal", 5, 6))
sketch3.addConstraint(Sketcher.Constraint("Equal", 6, 7))
sketch3.addConstraint(Sketcher.Constraint("Equal", 7, 8))
sketch3.addConstraint(Sketcher.Constraint("Equal", 8, 9))
sketch3.addConstraint(Sketcher.Constraint("Equal", 9, 10))
sketch3.addConstraint(Sketcher.Constraint("Equal", 10, 11))
sketch3.addConstraint(Sketcher.Constraint("Equal", 11, 12))
sketch3.addConstraint(Sketcher.Constraint("Equal", 12, 13))
sketch3.addConstraint(Sketcher.Constraint("Equal", 13, 14))
sketch3.addConstraint(Sketcher.Constraint("Symmetric", 10, 3, 11, 3, -1, 1))
sketch3.addConstraint(Sketcher.Constraint("Symmetric", 0, 3, 2, 3, -1))
sketch3.addConstraint(Sketcher.Constraint("Symmetric", 1, 3, 3, 3, -1))
sketch3.addConstraint(Sketcher.Constraint("Symmetric", 4, 3, 5, 3, -1))
sketch3.addConstraint(Sketcher.Constraint("Symmetric", 6, 3, 7, 3, -1))
sketch3.addConstraint(Sketcher.Constraint("Symmetric", 8, 3, 9, 3, -1))
sketch3.addConstraint(Sketcher.Constraint("Symmetric", 12, 3, 13, 3, -1))
sketch3.addConstraint(Sketcher.Constraint("PointOnObject", 10, 3, -2))
sketch3.addConstraint(Sketcher.Constraint("Horizontal", 1, 3, 4, 3))
sketch3.addConstraint(Sketcher.Constraint("Horizontal", 5, 3, 6, 3))
sketch3.addConstraint(Sketcher.Constraint("Horizontal", 7, 3, 8, 3))
sketch3.addConstraint(Sketcher.Constraint("Horizontal", 8, 3, 10, 3))
sketch3.addConstraint(Sketcher.Constraint("Horizontal", 10, 3, 14, 3))
sketch3.addConstraint(Sketcher.Constraint("Diameter", 0, Q("4.5 mm")))
sketch3.addConstraint(Sketcher.Constraint("DistanceX", 4, 3, -1, 1, Q("250 mm")))
sketch3.addConstraint(Sketcher.Constraint("DistanceX", 0, 3, 1, 3, Q("17 mm")))
sketch3.addConstraint(Sketcher.Constraint("DistanceY", 3, 3, 1, 3, Q("183 mm")))
sketch3.addConstraint(Sketcher.Constraint("DistanceX", 3, 3, 6, 3, Q("196 mm")))
sketch3.addConstraint(Sketcher.Constraint("DistanceX", 7, 3, 8, 3, Q("57 mm")))
sketch3.addConstraint(Sketcher.Constraint("DistanceY", 11, 3, 12, 3, Q("32 mm")))
sketch3.addConstraint(Sketcher.Constraint("DistanceX", 9, 3, 12, 3, Q("213 mm")))
sketch3.addConstraint(Sketcher.Constraint("DistanceX", 14, 3, 13, 3, Q("17 mm")))
sketch3.addConstraint(Sketcher.Constraint("DistanceX", 0, 3, -1, 1, Q("366.5 mm")))
sketch3.addConstraint(Sketcher.Constraint("DistanceY", 2, 3, 0, 3, Q("91.5 mm")))
sketch3.setExpression("Constraints[27]", "Params.sketch3_diameter")
doc.recompute()
hole = body.newObject("PartDesign::Hole", "Hole")
hole.Profile = sketch3
hole.ThreadType = "None"
hole.setExpression("Diameter", "Params.hole_diameter")
hole.DepthType = "ThroughAll"
hole.HoleCutType = "Countersink"
hole.setExpression("HoleCutDiameter", "Params.hole_csink_diameter")
hole.HoleCutCountersinkAngle = 90

doc.recompute()
